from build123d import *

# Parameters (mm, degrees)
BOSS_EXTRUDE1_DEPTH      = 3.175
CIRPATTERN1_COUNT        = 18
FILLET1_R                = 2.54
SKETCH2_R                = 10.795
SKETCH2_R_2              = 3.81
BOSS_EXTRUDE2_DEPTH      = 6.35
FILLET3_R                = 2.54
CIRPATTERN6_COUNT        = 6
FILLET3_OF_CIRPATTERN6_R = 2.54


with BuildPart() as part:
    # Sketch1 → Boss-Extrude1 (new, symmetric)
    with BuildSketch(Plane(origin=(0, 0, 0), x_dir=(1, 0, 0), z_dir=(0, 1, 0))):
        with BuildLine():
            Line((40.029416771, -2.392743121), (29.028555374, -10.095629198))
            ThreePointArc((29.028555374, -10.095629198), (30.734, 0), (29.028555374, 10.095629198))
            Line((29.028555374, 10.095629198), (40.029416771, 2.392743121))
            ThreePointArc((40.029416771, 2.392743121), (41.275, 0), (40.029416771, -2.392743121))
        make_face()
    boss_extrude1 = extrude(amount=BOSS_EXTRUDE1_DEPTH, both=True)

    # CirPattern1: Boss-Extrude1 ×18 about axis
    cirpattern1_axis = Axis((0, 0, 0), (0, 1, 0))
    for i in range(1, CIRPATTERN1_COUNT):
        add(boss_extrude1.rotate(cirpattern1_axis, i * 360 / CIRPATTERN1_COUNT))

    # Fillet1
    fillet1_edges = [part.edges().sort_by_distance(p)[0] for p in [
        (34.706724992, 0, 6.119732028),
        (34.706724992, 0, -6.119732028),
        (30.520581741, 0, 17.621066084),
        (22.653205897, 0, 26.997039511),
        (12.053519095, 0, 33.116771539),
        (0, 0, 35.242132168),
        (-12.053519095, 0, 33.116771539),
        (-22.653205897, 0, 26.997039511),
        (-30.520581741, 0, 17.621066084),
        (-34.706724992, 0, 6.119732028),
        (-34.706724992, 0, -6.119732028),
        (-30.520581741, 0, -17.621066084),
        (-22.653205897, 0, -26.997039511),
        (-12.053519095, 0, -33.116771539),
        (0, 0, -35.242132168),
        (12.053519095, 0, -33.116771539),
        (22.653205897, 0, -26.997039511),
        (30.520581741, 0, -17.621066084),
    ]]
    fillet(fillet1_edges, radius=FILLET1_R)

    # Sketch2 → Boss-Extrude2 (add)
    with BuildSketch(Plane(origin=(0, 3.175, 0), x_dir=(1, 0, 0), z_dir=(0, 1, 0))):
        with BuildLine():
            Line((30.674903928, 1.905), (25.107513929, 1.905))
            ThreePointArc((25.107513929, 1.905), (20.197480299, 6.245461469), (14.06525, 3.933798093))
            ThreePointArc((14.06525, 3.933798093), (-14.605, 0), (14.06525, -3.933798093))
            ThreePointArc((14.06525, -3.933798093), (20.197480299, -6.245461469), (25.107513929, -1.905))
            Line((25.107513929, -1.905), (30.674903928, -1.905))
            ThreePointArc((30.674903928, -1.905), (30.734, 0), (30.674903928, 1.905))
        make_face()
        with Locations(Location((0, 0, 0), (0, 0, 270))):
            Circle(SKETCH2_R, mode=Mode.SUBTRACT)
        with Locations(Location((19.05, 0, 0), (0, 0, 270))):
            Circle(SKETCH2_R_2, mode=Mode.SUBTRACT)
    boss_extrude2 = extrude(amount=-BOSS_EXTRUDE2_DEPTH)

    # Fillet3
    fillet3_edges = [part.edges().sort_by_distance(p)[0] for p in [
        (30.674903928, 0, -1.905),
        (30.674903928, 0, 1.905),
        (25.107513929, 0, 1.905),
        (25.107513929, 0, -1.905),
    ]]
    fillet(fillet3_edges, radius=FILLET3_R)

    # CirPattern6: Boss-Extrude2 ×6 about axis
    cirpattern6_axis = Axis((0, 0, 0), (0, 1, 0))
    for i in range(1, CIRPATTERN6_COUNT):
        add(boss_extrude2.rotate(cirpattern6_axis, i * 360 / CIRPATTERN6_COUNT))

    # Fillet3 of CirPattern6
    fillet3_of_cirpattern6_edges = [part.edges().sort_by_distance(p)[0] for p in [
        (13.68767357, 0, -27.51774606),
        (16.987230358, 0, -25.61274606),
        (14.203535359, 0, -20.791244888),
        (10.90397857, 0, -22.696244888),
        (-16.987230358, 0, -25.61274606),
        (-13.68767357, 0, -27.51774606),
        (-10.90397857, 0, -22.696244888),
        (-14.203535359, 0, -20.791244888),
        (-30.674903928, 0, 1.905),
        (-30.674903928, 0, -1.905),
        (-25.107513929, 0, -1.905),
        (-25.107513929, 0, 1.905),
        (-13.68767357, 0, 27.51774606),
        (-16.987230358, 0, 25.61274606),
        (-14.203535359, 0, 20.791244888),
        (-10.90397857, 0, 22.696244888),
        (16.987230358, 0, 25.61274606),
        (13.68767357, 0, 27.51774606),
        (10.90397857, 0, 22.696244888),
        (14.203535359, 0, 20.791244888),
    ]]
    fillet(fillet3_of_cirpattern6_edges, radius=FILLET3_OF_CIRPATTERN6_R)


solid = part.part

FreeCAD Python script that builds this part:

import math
import FreeCAD as App
import Part
import Sketcher

V = App.Vector
Q = App.Units.Quantity


def edges_at(feature, points):
    """Names of the edges that pass closest to the given points."""
    edges = feature.Shape.Edges
    near = lambda p: min(range(len(edges)), key=lambda i: edges[i].distToShape(Part.Vertex(*p))[0])
    return sorted({f"Edge{near(p) + 1}" for p in points})

doc = App.newDocument("Part")
body = doc.addObject("PartDesign::Body", "Body")

# Sketch on XZ plane
sketch1 = body.newObject("Sketcher::SketchObject", "Sketch")
sketch1.AttachmentSupport = (doc.getObject("XZ_Plane"), [""])
sketch1.MapMode = "FlatFace"
sketch1.addGeometry(Part.LineSegment(V(29, 10.1, 0), V(40, 2.4, 0)), False)
sketch1.addGeometry(Part.ArcOfCircle(Part.Circle(V(38.4, 0, 0), V(0, 0, 1), 2.9), math.radians(-55), math.radians(55)), False)
sketch1.addGeometry(Part.LineSegment(V(40, -2.4, 0), V(29, -10.1, 0)), False)
sketch1.addGeometry(Part.ArcOfCircle(Part.Circle(V(0, 0, 0), V(0, 0, 1), 30.7), math.radians(-19), math.radians(19)), False)
sketch1.addConstraint(Sketcher.Constraint("Tangent", 0, 2, 1, 2))
sketch1.addConstraint(Sketcher.Constraint("Tangent", 1, 1, 2, 1))
sketch1.addConstraint(Sketcher.Constraint("Coincident", 2, 2, 3, 1))
sketch1.addConstraint(Sketcher.Constraint("Coincident", 3, 2, 0, 1))
sketch1.addConstraint(Sketcher.Constraint("Coincident", 3, 3, -1, 1))
sketch1.addConstraint(Sketcher.Constraint("Symmetric", 0, 2, 1, 1, -1))
sketch1.addConstraint(Sketcher.Constraint("Radius", 3, Q("1.21 in")))
sketch1.addConstraint(Sketcher.Constraint("Angle", 0, Q("-35 deg")))
sketch1.addConstraint(Sketcher.Constraint("Radius", 1, Q("0.115 in")))
sketch1.addConstraint(Sketcher.Constraint("DistanceX", -1, 1, 1, 3, Q("1.51 in")))
pad1 = body.newObject("PartDesign::Pad", "Pad")
pad1.Profile = sketch1
pad1.Length = Q("0.25 in")
pad1.Midplane = True
doc.recompute()

polarpattern = body.newObject("PartDesign::PolarPattern", "PolarPattern")
polarpattern.Originals = [pad1]
polarpattern.Axis = (doc.getObject("Y_Axis"), [""])
polarpattern.Angle = 360
polarpattern.Occurrences = 18
body.Tip = polarpattern
doc.recompute()

fillet = body.newObject("PartDesign::Fillet", "Fillet")
fillet.Base = (polarpattern, edges_at(polarpattern, [
    (34.707, 0, 6.12),
    (34.707, 0, -6.12),
    (30.521, 0, 17.621),
    (22.653, 0, 26.997),
    (12.054, 0, 33.117),
    (0, 0, 35.242),
    (-12.054, 0, 33.117),
    (-22.653, 0, 26.997),
    (-30.521, 0, 17.621),
    (-34.707, 0, 6.12),
    (-34.707, 0, -6.12),
    (-30.521, 0, -17.621),
    (-22.653, 0, -26.997),
    (-12.054, 0, -33.117),
    (0, 0, -35.242),
    (12.054, 0, -33.117),
    (22.653, 0, -26.997),
    (30.521, 0, -17.621),
]))
fillet.Radius = Q("0.1 in")

# Sketch on XZ plane
sketch2 = body.newObject("Sketcher::SketchObject", "Sketch001")
sketch2.AttachmentSupport = (doc.getObject("XZ_Plane"), [""])
sketch2.MapMode = "FlatFace"
sketch2.AttachmentOffset = App.Placement(V(0, 0, -0.125 * 25.4), App.Rotation())
sketch2.addGeometry(Part.LineSegment(V(30.7, -1.9, 0), V(25.1, -1.9, 0)), False)
sketch2.addGeometry(Part.ArcOfCircle(Part.Circle(V(19.1, 0, 0), V(0, 0, 1), 6.3), math.radians(-142), math.radians(-17)), False)
sketch2.addGeometry(Part.ArcOfCircle(Part.Circle(V(0, 0, 0), V(0, 0, 1), 14.6), math.radians(16), math.radians(344)), False)
sketch2.addGeometry(Part.ArcOfCircle(Part.Circle(V(19.1, 0, 0), V(0, 0, 1), 6.3), math.radians(17), math.radians(142)), False)
sketch2.addGeometry(Part.LineSegment(V(25.1, 1.9, 0), V(30.7, 1.9, 0)), False)
sketch2.addGeometry(Part.ArcOfCircle(Part.Circle(V(0, 0, 0), V(0, 0, 1), 30.7), math.radians(-3.55), math.radians(3.55)), False)
sketch2.addGeometry(Part.Circle(V(19.1, 0, 0), V(0, 0, 1), 3.8), False)
sketch2.addGeometry(Part.Circle(V(0, 0, 0), V(0, 0, 1), 10.8), False)
sketch2.addConstraint(Sketcher.Constraint("Coincident", 0, 2, 1, 2))
sketch2.addConstraint(Sketcher.Constraint("Coincident", 1, 1, 2, 2))
sketch2.addConstraint(Sketcher.Constraint("Coincident", 2, 1, 3, 2))
sketch2.addConstraint(Sketcher.Constraint("Coincident", 3, 1, 4, 1))
sketch2.addConstraint(Sketcher.Constraint("Coincident", 4, 2, 5, 2))
sketch2.addConstraint(Sketcher.Constraint("Coincident", 5, 1, 0, 1))
sketch2.addConstraint(Sketcher.Constraint("Horizontal", 0))
sketch2.addConstraint(Sketcher.Constraint("Horizontal", 4))
sketch2.addConstraint(Sketcher.Constraint("Coincident", 2, 3, -1, 1))
sketch2.addConstraint(Sketcher.Constraint("Coincident", 5, 3, -1, 1))
sketch2.addConstraint(Sketcher.Constraint("Coincident", 7, 3, -1, 1))
sketch2.addConstraint(Sketcher.Constraint("Coincident", 3, 3, 1, 3))
sketch2.addConstraint(Sketcher.Constraint("Coincident", 6, 3, 1, 3))
sketch2.addConstraint(Sketcher.Constraint("Equal", 1, 3))
sketch2.addConstraint(Sketcher.Constraint("Symmetric", 0, 2, 3, 1, -1))
sketch2.addConstraint(Sketcher.Constraint("Diameter", 6, Q("0.3 in")))
sketch2.addConstraint(Sketcher.Constraint("Diameter", 7, Q("0.85 in")))
sketch2.addConstraint(Sketcher.Constraint("Radius", 1, Q("0.25 in")))
sketch2.addConstraint(Sketcher.Constraint("Radius", 5, Q("1.21 in")))
sketch2.addConstraint(Sketcher.Constraint("Radius", 2, Q("0.575 in")))
sketch2.addConstraint(Sketcher.Constraint("DistanceX", -1, 1, 1, 3, Q("0.75 in")))
sketch2.addConstraint(Sketcher.Constraint("DistanceY", 0, 2, 3, 1, Q("0.15 in")))
pad2 = body.newObject("PartDesign::Pad", "Pad001")
pad2.Profile = sketch2
pad2.Length = Q("0.25 in")
doc.recompute()

fillet2 = body.newObject("PartDesign::Fillet", "Fillet001")
fillet2.Base = (pad2, edges_at(pad2, [
    (30.675, 0, -1.905),
    (30.675, 0, 1.905),
    (25.108, 0, 1.905),
    (25.108, 0, -1.905),
]))
fillet2.Radius = Q("0.1 in")
doc.recompute()

polarpattern2 = body.newObject("PartDesign::PolarPattern", "PolarPattern001")
polarpattern2.Originals = [pad2]
polarpattern2.Axis = (doc.getObject("Y_Axis"), [""])
polarpattern2.Angle = 360
polarpattern2.Occurrences = 6
body.Tip = polarpattern2
doc.recompute()

fillet3 = body.newObject("PartDesign::Fillet", "Fillet002")
fillet3.Base = (polarpattern2, edges_at(polarpattern2, [
    (13.688, 0, -27.518),
    (16.987, 0, -25.613),
    (14.204, 0, -20.791),
    (10.904, 0, -22.696),
    (-16.987, 0, -25.613),
    (-13.688, 0, -27.518),
    (-10.904, 0, -22.696),
    (-14.204, 0, -20.791),
    (-30.675, 0, 1.905),
    (-30.675, 0, -1.905),
    (-25.108, 0, -1.905),
    (-25.108, 0, 1.905),
    (-13.688, 0, 27.518),
    (-16.987, 0, 25.613),
    (-14.204, 0, 20.791),
    (-10.904, 0, 22.696),
    (16.987, 0, 25.613),
    (13.688, 0, 27.518),
    (10.904, 0, 22.696),
    (14.204, 0, 20.791),
]))
fillet3.Radius = Q("0.1 in")

doc.recompute()
